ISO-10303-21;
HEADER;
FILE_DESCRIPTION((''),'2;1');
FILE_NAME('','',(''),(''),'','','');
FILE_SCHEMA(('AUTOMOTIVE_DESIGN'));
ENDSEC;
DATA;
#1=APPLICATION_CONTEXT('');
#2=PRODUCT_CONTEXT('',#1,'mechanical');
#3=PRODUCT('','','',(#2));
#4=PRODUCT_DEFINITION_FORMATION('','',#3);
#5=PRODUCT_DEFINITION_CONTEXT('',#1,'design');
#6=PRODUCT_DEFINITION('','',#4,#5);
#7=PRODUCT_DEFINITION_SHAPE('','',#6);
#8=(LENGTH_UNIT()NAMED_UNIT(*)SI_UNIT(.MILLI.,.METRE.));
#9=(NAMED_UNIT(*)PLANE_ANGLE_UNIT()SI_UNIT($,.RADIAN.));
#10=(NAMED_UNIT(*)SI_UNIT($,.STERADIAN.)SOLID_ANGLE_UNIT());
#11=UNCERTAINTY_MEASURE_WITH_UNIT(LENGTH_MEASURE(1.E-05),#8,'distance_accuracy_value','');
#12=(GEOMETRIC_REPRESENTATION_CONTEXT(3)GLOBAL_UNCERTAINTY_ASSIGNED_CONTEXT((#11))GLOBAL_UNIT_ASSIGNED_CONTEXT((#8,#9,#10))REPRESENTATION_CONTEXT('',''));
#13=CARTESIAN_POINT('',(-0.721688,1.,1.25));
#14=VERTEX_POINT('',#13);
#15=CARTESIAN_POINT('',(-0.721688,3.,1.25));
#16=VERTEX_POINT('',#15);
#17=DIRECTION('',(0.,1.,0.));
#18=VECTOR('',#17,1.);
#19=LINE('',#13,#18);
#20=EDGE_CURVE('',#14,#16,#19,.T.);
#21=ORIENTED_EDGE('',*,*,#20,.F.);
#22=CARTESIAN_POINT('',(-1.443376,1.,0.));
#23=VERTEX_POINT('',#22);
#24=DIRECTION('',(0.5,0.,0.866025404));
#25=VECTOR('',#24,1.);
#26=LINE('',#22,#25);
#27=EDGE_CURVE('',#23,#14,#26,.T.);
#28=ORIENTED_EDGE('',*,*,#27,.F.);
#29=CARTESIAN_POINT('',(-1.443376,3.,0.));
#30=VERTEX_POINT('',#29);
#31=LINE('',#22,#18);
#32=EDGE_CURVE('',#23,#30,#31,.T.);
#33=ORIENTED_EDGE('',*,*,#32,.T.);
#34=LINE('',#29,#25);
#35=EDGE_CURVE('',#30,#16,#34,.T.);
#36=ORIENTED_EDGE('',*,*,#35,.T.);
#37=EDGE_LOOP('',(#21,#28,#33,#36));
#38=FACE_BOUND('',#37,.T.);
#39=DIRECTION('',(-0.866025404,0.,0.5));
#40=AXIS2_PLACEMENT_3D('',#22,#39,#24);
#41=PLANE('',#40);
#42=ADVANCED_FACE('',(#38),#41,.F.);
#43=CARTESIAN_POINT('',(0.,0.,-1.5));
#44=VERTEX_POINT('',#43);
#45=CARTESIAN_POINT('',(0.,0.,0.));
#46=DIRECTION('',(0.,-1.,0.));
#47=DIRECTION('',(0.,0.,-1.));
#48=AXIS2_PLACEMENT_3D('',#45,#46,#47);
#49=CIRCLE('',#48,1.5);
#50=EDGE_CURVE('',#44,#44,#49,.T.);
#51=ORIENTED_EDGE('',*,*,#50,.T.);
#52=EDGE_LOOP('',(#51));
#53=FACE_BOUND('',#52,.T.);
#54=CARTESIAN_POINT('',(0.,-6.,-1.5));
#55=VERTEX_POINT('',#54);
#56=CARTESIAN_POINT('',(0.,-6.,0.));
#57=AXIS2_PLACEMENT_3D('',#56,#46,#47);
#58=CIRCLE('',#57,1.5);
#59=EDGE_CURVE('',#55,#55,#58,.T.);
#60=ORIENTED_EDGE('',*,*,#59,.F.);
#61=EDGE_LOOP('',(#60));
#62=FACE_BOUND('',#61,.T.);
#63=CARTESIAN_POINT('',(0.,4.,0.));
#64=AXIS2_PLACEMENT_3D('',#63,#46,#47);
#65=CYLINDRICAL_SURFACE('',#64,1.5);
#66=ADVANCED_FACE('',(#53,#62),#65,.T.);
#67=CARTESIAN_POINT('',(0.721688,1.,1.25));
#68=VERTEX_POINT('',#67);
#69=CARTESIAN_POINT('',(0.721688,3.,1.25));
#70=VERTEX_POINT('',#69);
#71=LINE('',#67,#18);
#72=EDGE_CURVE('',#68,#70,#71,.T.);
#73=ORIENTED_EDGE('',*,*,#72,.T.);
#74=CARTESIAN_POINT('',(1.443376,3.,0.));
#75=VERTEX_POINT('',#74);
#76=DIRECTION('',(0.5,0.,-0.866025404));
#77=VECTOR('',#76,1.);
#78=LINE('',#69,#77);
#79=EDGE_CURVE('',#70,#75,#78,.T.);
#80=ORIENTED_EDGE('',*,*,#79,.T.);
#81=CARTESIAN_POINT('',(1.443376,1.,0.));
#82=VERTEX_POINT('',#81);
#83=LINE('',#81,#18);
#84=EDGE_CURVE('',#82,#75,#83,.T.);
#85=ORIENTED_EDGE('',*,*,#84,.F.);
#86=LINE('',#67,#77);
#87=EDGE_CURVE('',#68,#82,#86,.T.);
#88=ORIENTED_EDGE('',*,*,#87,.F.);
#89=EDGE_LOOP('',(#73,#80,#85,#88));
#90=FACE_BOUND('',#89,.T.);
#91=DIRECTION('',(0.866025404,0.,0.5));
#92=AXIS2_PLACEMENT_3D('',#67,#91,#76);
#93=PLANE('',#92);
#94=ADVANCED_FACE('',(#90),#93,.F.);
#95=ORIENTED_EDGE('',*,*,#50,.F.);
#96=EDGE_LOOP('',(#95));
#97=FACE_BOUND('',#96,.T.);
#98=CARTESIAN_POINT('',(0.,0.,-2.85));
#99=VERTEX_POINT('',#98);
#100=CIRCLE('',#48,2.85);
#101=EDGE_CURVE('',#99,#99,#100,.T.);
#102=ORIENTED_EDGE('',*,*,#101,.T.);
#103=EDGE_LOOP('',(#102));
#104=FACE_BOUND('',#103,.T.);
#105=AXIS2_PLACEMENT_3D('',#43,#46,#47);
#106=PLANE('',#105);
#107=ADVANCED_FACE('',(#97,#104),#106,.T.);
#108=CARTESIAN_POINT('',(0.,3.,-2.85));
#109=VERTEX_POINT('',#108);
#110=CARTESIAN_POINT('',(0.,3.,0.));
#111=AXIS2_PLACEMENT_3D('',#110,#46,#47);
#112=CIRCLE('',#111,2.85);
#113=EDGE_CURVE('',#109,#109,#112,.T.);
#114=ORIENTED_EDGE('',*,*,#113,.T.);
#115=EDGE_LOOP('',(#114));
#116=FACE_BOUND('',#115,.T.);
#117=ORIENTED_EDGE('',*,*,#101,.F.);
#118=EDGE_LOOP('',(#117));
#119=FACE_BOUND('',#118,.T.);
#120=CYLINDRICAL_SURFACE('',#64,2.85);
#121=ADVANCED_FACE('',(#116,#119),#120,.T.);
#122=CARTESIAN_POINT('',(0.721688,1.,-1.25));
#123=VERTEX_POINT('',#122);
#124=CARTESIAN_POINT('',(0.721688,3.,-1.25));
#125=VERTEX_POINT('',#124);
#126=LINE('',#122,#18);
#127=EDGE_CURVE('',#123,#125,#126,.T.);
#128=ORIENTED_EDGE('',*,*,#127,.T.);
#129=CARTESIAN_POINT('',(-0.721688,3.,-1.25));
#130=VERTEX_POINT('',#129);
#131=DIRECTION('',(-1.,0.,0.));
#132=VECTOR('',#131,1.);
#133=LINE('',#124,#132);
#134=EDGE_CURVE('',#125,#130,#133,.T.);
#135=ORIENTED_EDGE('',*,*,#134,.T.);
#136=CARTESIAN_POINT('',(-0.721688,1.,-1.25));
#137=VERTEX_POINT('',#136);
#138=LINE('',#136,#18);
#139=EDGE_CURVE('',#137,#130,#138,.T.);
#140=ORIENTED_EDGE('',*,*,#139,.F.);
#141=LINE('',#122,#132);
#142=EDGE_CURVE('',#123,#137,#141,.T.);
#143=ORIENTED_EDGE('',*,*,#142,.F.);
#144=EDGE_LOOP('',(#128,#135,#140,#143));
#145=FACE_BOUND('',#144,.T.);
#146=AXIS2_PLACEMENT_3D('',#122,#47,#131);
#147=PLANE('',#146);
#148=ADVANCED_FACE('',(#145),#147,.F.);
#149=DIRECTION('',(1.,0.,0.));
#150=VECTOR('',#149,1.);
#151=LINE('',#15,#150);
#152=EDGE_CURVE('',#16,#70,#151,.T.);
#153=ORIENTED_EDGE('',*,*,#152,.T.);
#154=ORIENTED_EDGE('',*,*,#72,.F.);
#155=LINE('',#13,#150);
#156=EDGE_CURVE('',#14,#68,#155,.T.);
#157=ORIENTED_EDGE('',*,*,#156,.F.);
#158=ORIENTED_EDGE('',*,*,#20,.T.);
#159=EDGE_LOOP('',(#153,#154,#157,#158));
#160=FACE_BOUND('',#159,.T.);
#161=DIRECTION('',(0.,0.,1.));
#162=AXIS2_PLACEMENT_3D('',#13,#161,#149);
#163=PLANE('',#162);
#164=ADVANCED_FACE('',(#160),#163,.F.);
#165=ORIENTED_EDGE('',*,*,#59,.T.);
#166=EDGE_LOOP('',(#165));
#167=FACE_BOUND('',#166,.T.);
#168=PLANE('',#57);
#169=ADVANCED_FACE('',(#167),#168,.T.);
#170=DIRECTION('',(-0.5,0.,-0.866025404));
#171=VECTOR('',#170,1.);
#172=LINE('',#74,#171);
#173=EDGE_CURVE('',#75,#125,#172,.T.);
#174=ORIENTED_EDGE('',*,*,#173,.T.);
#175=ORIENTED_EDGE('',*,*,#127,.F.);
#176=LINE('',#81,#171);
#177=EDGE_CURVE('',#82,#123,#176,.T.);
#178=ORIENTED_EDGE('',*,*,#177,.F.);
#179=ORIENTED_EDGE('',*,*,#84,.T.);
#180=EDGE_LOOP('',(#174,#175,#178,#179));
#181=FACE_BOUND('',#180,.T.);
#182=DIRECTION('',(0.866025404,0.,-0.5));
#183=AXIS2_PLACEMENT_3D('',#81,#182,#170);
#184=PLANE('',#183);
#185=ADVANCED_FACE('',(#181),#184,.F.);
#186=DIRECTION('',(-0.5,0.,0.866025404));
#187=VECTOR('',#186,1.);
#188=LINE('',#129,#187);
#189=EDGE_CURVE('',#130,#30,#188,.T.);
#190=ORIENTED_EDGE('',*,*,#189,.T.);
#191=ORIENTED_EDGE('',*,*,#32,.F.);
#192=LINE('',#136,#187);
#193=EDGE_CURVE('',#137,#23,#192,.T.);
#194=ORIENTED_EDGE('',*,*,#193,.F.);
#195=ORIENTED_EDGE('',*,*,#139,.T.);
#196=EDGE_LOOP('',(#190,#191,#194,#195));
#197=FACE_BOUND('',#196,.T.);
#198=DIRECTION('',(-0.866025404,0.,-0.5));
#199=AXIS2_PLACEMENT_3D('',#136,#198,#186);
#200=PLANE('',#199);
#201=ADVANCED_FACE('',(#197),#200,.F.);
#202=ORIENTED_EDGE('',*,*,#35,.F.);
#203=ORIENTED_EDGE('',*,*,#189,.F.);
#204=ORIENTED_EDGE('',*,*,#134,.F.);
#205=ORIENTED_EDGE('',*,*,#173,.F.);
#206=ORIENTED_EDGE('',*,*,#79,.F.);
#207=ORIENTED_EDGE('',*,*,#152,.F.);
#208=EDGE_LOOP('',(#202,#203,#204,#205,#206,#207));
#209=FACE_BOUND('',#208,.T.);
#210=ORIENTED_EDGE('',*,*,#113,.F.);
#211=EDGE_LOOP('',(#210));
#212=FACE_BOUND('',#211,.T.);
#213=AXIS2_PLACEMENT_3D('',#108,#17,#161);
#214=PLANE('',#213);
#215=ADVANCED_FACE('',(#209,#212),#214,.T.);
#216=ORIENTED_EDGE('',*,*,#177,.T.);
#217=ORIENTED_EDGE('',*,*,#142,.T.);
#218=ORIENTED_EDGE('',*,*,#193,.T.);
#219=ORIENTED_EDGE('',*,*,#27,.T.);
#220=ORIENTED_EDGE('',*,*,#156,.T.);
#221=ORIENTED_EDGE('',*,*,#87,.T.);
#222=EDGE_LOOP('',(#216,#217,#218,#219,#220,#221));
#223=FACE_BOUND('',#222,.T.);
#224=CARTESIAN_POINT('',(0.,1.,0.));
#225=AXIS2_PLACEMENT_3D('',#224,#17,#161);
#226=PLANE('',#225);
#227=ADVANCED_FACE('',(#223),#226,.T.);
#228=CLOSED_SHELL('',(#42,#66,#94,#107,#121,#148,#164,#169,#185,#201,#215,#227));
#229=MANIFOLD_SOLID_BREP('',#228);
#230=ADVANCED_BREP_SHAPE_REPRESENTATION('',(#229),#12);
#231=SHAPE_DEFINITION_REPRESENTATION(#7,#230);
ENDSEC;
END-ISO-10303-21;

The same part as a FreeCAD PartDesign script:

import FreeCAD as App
import Part
import Sketcher
from FreeCAD import Vector
Q = App.Units.Quantity


def add_polygon(sketch, points):
    """Adds a closed chain of lines whose ends are joined by coincident constraints."""
    first, n = sketch.GeometryCount, len(points)
    for a, b in zip(points, points[1:] + points[:1]):
        sketch.addGeometry(Part.LineSegment(App.Vector(*a, 0), App.Vector(*b, 0)), False)
    for i in range(n):
        sketch.addConstraint(Sketcher.Constraint("Coincident", first + i, 2, first + (i + 1) % n, 1))

doc = App.newDocument("Part")
body = doc.addObject("PartDesign::Body", "Body")

sketch1 = body.newObject("Sketcher::SketchObject", "Sketch")
sketch1.AttachmentSupport = (doc.getObject("YZ_Plane"), [""])
sketch1.MapMode = "FlatFace"
add_polygon(sketch1, [(-6, 0), (-6, -1.5), (0, -1.5), (0, -2.9), (3, -2.9), (3, 0)])
sketch1.addConstraint([
    Sketcher.Constraint("Vertical", 0),
    Sketcher.Constraint("Horizontal", 1),
    Sketcher.Constraint("Vertical", 2),
    Sketcher.Constraint("Horizontal", 3),
    Sketcher.Constraint("Vertical", 4),
    Sketcher.Constraint("Horizontal", 5),
    Sketcher.Constraint("PointOnObject", 1, 2, -2),
    Sketcher.Constraint("PointOnObject", 4, 2, -1),
    Sketcher.Constraint("DistanceX", 1, 1, 1, 2, 6.0),
    Sketcher.Constraint("DistanceX", 3, 1, 3, 2, 3.0),
    Sketcher.Constraint("DistanceY", 0, 2, 0, 1, 1.5),
    Sketcher.Constraint("DistanceY", 2, 2, 2, 1, 1.35),
])
revolution = body.newObject("PartDesign::Revolution", "Revolution")
revolution.Profile = sketch1
revolution.ReferenceAxis = (sketch1, ["H_Axis"])
revolution.Angle = 360

sketch2 = body.newObject("Sketcher::SketchObject", "Sketch001")
sketch2.AttachmentSupport = (doc.getObject("XZ_Plane"), [""])
sketch2.MapMode = "FlatFace"
sketch2.AttachmentOffset = App.Placement(Vector(0, 0, -3), App.Rotation())
add_polygon(sketch2, [(1.4, 0), (0.7, -1.2), (-0.7, -1.2), (-1.4, 0), (-0.7, 1.2), (0.7, 1.2)])
sketch2.addConstraint([
    Sketcher.Constraint("Horizontal", 1),
    Sketcher.Constraint("Horizontal", 4),
    Sketcher.Constraint("Symmetric", 0, 2, 3, 2, -1, 1),
    Sketcher.Constraint("Symmetric", 2, 2, 5, 2, -1, 1),
    Sketcher.Constraint("PointOnObject", 2, 2, -1),
    Sketcher.Constraint("Parallel", 2, 5),
    Sketcher.Constraint("Vertical", 1, 2, 3, 2),
    Sketcher.Constraint("Angle", 0, Q("-120 deg")),
    Sketcher.Constraint("DistanceY", 1, 2, 3, 2, 2.5),
    Sketcher.Constraint("DistanceX", 1, 2, 1, 1, 1.443376),
])
pocket1 = body.newObject("PartDesign::Pocket", "Pocket")
pocket1.Profile = sketch2
pocket1.Length = 2
pocket1.Reversed = True

doc.recompute()
